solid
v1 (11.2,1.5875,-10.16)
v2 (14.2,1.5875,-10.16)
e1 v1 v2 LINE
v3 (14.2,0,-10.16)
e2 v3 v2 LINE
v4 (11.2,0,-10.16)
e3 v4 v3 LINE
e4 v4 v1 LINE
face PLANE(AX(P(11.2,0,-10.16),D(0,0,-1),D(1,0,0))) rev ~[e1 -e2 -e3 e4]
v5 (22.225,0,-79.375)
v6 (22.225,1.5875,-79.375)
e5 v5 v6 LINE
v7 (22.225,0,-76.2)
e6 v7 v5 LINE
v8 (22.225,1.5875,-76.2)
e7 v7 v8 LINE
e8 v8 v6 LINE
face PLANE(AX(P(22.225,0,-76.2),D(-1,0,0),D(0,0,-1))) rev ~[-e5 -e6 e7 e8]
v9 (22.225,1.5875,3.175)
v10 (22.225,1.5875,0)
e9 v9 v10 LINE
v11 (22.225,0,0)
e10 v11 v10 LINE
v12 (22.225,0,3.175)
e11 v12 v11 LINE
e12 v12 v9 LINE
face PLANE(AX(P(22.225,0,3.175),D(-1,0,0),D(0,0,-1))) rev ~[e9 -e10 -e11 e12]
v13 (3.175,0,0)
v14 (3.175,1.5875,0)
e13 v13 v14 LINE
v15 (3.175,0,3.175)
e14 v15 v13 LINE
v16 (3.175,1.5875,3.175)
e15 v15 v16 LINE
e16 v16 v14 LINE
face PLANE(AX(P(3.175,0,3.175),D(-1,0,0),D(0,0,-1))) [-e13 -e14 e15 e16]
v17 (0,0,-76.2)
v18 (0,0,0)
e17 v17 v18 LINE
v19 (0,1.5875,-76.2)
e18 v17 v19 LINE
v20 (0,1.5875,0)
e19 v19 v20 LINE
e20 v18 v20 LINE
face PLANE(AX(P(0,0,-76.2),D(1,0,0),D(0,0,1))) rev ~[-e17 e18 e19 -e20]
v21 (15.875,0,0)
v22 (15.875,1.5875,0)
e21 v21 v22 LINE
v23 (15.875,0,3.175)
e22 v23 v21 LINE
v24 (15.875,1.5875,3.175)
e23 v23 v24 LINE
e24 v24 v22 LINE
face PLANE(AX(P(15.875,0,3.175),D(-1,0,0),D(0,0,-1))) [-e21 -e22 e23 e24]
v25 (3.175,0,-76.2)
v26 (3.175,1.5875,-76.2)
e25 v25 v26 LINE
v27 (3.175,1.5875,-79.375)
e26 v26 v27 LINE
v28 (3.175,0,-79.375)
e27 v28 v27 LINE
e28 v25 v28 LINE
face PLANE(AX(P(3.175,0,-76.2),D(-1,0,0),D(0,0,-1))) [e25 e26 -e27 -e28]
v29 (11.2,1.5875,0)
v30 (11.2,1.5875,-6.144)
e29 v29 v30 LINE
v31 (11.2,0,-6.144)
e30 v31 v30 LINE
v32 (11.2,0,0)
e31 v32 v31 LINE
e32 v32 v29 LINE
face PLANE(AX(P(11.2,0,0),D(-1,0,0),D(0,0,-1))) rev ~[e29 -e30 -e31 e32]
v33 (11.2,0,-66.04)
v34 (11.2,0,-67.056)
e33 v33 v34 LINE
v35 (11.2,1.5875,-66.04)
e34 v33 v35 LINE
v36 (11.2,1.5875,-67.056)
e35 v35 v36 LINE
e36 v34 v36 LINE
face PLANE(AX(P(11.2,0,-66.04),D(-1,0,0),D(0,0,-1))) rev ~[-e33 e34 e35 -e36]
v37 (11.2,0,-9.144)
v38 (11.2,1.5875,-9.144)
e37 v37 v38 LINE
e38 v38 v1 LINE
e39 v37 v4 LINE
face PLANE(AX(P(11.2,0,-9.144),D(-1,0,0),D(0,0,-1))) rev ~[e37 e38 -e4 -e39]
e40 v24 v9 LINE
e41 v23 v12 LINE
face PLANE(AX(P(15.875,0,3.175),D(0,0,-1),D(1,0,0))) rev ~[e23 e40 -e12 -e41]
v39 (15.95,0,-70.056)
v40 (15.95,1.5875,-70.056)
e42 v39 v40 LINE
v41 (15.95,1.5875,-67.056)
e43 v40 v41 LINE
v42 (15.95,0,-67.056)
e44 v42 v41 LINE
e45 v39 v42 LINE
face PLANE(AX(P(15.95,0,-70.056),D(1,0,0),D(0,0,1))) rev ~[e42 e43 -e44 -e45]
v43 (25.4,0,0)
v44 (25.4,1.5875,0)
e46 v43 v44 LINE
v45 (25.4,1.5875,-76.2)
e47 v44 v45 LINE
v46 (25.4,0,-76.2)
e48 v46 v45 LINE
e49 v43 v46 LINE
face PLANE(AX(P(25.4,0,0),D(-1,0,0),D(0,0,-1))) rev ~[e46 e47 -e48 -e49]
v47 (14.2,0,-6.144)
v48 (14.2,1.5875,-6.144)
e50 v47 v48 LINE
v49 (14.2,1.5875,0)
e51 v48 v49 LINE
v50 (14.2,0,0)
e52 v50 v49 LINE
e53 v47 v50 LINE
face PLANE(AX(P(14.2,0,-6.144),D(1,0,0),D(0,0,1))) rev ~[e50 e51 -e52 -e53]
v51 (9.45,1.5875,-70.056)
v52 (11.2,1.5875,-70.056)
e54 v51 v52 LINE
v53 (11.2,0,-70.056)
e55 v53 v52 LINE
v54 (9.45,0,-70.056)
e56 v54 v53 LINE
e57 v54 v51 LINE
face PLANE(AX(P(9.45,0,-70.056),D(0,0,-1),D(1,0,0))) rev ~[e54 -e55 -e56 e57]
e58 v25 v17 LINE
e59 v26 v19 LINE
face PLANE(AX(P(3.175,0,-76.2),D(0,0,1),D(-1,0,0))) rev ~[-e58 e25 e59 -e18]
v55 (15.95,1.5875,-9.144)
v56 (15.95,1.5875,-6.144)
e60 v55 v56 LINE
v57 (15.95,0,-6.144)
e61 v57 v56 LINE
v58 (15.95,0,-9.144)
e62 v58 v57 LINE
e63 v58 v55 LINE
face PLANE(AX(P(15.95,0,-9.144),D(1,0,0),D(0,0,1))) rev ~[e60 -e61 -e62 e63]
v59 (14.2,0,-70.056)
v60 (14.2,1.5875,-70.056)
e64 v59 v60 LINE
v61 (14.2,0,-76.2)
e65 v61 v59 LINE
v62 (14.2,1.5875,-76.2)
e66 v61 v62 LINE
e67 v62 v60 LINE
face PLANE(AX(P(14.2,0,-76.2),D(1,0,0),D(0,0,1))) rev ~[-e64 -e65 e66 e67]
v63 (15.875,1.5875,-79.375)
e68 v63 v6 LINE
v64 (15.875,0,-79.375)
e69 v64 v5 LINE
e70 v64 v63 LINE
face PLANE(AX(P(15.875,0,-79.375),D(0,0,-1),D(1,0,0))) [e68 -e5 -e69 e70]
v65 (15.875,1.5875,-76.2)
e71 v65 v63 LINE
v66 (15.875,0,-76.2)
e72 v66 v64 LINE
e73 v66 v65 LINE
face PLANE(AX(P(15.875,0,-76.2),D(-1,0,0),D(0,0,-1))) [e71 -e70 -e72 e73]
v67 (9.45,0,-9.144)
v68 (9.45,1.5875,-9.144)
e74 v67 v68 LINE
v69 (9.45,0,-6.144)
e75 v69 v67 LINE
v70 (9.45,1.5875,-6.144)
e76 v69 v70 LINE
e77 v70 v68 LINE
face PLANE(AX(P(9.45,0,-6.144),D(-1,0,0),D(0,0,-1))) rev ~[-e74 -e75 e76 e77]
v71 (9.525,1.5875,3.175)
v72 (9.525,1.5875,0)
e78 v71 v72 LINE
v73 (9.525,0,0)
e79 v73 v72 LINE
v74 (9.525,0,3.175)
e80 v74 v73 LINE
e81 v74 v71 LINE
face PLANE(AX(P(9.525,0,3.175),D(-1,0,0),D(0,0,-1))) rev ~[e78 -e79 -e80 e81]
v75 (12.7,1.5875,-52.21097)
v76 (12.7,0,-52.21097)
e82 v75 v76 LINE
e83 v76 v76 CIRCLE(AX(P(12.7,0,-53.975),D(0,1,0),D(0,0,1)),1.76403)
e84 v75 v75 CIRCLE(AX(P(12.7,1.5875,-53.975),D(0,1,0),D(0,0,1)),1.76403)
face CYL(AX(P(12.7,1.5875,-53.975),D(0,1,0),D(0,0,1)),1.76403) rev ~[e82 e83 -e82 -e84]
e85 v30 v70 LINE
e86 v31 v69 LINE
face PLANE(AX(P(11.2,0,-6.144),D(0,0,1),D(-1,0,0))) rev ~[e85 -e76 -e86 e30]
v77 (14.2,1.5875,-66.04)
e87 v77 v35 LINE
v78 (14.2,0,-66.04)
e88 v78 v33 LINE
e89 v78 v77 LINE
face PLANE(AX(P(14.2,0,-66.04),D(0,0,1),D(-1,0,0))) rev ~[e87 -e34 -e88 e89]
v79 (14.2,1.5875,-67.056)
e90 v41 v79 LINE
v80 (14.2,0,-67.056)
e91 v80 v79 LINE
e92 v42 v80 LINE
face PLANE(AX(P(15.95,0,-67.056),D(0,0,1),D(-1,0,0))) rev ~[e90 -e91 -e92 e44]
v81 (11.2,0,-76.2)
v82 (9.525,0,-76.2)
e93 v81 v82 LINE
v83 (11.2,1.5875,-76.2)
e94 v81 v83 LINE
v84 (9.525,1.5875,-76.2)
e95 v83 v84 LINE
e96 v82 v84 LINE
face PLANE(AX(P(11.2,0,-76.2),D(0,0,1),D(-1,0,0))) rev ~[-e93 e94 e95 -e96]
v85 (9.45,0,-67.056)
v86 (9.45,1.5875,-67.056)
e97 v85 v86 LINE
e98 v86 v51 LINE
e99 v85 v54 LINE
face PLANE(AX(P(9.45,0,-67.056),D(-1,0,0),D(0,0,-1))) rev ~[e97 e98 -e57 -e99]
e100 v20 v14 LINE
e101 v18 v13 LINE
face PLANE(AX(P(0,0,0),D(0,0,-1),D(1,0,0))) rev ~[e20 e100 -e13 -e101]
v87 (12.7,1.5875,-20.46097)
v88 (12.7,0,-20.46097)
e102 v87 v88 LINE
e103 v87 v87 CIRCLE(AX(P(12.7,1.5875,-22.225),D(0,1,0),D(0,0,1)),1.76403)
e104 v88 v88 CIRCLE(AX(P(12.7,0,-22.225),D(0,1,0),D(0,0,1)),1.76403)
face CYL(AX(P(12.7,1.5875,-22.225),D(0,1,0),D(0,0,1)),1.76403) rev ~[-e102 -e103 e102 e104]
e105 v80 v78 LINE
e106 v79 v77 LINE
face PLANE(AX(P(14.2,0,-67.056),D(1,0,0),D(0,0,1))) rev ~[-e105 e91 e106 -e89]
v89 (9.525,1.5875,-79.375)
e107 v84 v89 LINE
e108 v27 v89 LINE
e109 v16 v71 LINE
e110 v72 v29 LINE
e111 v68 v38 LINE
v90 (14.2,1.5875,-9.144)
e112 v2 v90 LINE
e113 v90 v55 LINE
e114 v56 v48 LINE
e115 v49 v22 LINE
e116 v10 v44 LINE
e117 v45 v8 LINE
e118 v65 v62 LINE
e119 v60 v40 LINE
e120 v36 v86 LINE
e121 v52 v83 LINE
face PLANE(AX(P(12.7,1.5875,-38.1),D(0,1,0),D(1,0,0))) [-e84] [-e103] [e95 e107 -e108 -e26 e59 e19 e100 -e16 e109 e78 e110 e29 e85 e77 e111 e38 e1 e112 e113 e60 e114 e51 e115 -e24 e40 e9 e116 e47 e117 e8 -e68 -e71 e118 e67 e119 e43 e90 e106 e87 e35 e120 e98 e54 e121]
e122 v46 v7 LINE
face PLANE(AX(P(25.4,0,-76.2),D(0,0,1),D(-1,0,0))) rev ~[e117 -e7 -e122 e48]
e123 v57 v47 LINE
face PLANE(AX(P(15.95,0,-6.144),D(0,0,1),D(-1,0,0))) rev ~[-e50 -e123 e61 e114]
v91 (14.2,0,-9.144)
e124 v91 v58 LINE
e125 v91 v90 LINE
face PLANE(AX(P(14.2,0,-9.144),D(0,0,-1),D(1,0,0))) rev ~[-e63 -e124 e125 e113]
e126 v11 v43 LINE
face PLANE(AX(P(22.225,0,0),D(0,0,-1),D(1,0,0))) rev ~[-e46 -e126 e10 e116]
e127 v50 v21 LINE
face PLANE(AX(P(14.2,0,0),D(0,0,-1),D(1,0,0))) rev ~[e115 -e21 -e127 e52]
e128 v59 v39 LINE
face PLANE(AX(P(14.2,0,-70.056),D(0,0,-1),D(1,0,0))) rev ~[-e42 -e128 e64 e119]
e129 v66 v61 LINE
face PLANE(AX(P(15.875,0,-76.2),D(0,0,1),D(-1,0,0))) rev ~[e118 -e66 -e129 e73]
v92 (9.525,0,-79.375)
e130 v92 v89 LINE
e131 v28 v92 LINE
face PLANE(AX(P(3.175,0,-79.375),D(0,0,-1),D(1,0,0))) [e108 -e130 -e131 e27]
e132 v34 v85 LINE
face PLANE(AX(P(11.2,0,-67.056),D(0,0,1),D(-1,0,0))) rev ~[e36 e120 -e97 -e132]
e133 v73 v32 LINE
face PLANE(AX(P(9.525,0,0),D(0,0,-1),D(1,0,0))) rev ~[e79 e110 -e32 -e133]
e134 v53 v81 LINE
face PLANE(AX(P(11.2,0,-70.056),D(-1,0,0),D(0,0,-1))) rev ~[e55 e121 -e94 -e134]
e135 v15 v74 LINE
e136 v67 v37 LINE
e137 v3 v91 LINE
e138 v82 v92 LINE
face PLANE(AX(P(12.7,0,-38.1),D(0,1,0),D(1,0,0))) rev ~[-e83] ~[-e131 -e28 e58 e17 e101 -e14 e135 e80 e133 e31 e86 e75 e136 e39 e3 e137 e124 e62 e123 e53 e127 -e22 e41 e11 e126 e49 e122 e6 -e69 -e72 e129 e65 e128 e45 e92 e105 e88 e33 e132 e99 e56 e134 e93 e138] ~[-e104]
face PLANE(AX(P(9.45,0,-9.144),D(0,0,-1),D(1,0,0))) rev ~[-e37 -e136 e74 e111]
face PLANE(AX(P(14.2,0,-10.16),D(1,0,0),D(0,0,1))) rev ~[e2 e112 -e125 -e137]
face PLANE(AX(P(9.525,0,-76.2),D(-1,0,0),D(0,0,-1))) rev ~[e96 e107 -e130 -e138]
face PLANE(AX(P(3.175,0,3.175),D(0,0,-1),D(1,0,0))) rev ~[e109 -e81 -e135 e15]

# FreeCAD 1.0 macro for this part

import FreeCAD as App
import Part
import Sketcher
Q = App.Units.Quantity


def add_polygon(sketch, points):
    """Adds a closed chain of lines whose ends are joined by coincident constraints."""
    first, n = sketch.GeometryCount, len(points)
    for a, b in zip(points, points[1:] + points[:1]):
        sketch.addGeometry(Part.LineSegment(App.Vector(*a, 0), App.Vector(*b, 0)), False)
    for i in range(n):
        sketch.addConstraint(Sketcher.Constraint("Coincident", first + i, 2, first + (i + 1) % n, 1))

doc = App.newDocument("Part")
body = doc.addObject("PartDesign::Body", "Body")

sketch1 = doc.addObject("Sketcher::SketchObject", "Sketch")
body.addObject(sketch1)
sketch1.AttachmentSupport = (doc.XZ_Plane, [""])
sketch1.MapMode = "FlatFace"
add_polygon(sketch1, [(0, -76.2), (0, 0), (3.2, 0), (3.2, 3.2), (9.5, 3.2), (9.5, 0), (11.2, 0), (11.2, -6.1), (9.4, -6.1), (9.4, -9.1), (11.2, -9.1), (11.2, -10.2), (14.2, -10.2), (14.2, -9.1), (15.9, -9.1), (15.9, -6.1), (14.2, -6.1), (14.2, 0), (15.9, 0), (15.9, 3.2), (22.2, 3.2), (22.2, 0), (25.4, 0), (25.4, -76.2), (22.2, -76.2), (22.2, -79.4), (15.9, -79.4), (15.9, -76.2), (14.2, -76.2), (14.2, -70.1), (15.9, -70.1), (15.9, -67.1), (14.2, -67.1), (14.2, -66), (11.2, -66), (11.2, -67.1), (9.4, -67.1), (9.4, -70.1), (11.2, -70.1), (11.2, -76.2), (9.5, -76.2), (9.5, -79.4), (3.2, -79.4), (3.2, -76.2)])
sketch1.addConstraint(Sketcher.Constraint("Vertical", 0))
sketch1.addConstraint(Sketcher.Constraint("Horizontal", 1))
sketch1.addConstraint(Sketcher.Constraint("Vertical", 2))
sketch1.addConstraint(Sketcher.Constraint("Horizontal", 3))
sketch1.addConstraint(Sketcher.Constraint("Vertical", 4))
sketch1.addConstraint(Sketcher.Constraint("Horizontal", 5))
sketch1.addConstraint(Sketcher.Constraint("Vertical", 6))
sketch1.addConstraint(Sketcher.Constraint("Horizontal", 7))
sketch1.addConstraint(Sketcher.Constraint("Vertical", 8))
sketch1.addConstraint(Sketcher.Constraint("Horizontal", 9))
sketch1.addConstraint(Sketcher.Constraint("Vertical", 10))
sketch1.addConstraint(Sketcher.Constraint("Horizontal", 11))
sketch1.addConstraint(Sketcher.Constraint("Vertical", 12))
sketch1.addConstraint(Sketcher.Constraint("Horizontal", 13))
sketch1.addConstraint(Sketcher.Constraint("Vertical", 14))
sketch1.addConstraint(Sketcher.Constraint("Horizontal", 15))
sketch1.addConstraint(Sketcher.Constraint("Vertical", 16))
sketch1.addConstraint(Sketcher.Constraint("Horizontal", 17))
sketch1.addConstraint(Sketcher.Constraint("Vertical", 18))
sketch1.addConstraint(Sketcher.Constraint("Horizontal", 19))
sketch1.addConstraint(Sketcher.Constraint("Vertical", 20))
sketch1.addConstraint(Sketcher.Constraint("Horizontal", 21))
sketch1.addConstraint(Sketcher.Constraint("Vertical", 22))
sketch1.addConstraint(Sketcher.Constraint("Horizontal", 23))
sketch1.addConstraint(Sketcher.Constraint("Vertical", 24))
sketch1.addConstraint(Sketcher.Constraint("Horizontal", 25))
sketch1.addConstraint(Sketcher.Constraint("Vertical", 26))
sketch1.addConstraint(Sketcher.Constraint("Horizontal", 27))
sketch1.addConstraint(Sketcher.Constraint("Vertical", 28))
sketch1.addConstraint(Sketcher.Constraint("Horizontal", 29))
sketch1.addConstraint(Sketcher.Constraint("Vertical", 30))
sketch1.addConstraint(Sketcher.Constraint("Horizontal", 31))
sketch1.addConstraint(Sketcher.Constraint("Vertical", 32))
sketch1.addConstraint(Sketcher.Constraint("Horizontal", 33))
sketch1.addConstraint(Sketcher.Constraint("Vertical", 34))
sketch1.addConstraint(Sketcher.Constraint("Horizontal", 35))
sketch1.addConstraint(Sketcher.Constraint("Vertical", 36))
sketch1.addConstraint(Sketcher.Constraint("Horizontal", 37))
sketch1.addConstraint(Sketcher.Constraint("Vertical", 38))
sketch1.addConstraint(Sketcher.Constraint("Horizontal", 39))
sketch1.addConstraint(Sketcher.Constraint("Vertical", 40))
sketch1.addConstraint(Sketcher.Constraint("Horizontal", 41))
sketch1.addConstraint(Sketcher.Constraint("Vertical", 42))
sketch1.addConstraint(Sketcher.Constraint("Horizontal", 43))
sketch1.addConstraint(Sketcher.Constraint("Coincident", 0, 2, -1, 1))
sketch1.addConstraint(Sketcher.Constraint("PointOnObject", 4, 2, -1))
sketch1.addConstraint(Sketcher.Constraint("PointOnObject", 16, 2, -1))
sketch1.addConstraint(Sketcher.Constraint("PointOnObject", 20, 2, -1))
sketch1.addConstraint(Sketcher.Constraint("Horizontal", 9, 2, 12, 2))
sketch1.addConstraint(Sketcher.Constraint("Horizontal", 7, 2, 14, 2))
sketch1.addConstraint(Sketcher.Constraint("Horizontal", 3, 2, 18, 2))
sketch1.addConstraint(Sketcher.Constraint("Horizontal", 23, 2, 26, 2))
sketch1.addConstraint(Sketcher.Constraint("Horizontal", 31, 2, 34, 2))
sketch1.addConstraint(Sketcher.Constraint("Horizontal", 29, 2, 36, 2))
sketch1.addConstraint(Sketcher.Constraint("Horizontal", 27, 2, 38, 2))
sketch1.addConstraint(Sketcher.Constraint("Horizontal", 25, 2, 40, 2))
sketch1.addConstraint(Sketcher.Constraint("Horizontal", 39, 2, 42, 2))
sketch1.addConstraint(Sketcher.Constraint("Vertical", 6, 2, 9, 2))
sketch1.addConstraint(Sketcher.Constraint("Vertical", 12, 2, 15, 2))
sketch1.addConstraint(Sketcher.Constraint("Vertical", 20, 2, 23, 2))
sketch1.addConstraint(Sketcher.Constraint("Vertical", 18, 2, 25, 2))
sketch1.addConstraint(Sketcher.Constraint("Vertical", 16, 2, 27, 2))
sketch1.addConstraint(Sketcher.Constraint("Vertical", 14, 2, 29, 2))
sketch1.addConstraint(Sketcher.Constraint("Vertical", 28, 2, 31, 2))
sketch1.addConstraint(Sketcher.Constraint("Vertical", 10, 2, 33, 2))
sketch1.addConstraint(Sketcher.Constraint("Vertical", 8, 2, 35, 2))
sketch1.addConstraint(Sketcher.Constraint("Vertical", 34, 2, 37, 2))
sketch1.addConstraint(Sketcher.Constraint("Vertical", 4, 2, 39, 2))
sketch1.addConstraint(Sketcher.Constraint("Vertical", 2, 2, 41, 2))
sketch1.addConstraint(Sketcher.Constraint("Equal", 9, 13))
sketch1.addConstraint(Sketcher.Constraint("Equal", 5, 17))
sketch1.addConstraint(Sketcher.Constraint("Equal", 3, 19))
sketch1.addConstraint(Sketcher.Constraint("Equal", 1, 21))
sketch1.addConstraint(Sketcher.Constraint("Equal", 43, 2))
sketch1.addConstraint(Sketcher.Constraint("Equal", 33, 8))
sketch1.addConstraint(Sketcher.Constraint("Equal", 20, 24))
sketch1.addConstraint(Sketcher.Constraint("Equal", 16, 28))
sketch1.addConstraint(Sketcher.Constraint("Equal", 14, 30))
sketch1.addConstraint(Sketcher.Constraint("Equal", 12, 32))
sketch1.addConstraint(Sketcher.Constraint("DistanceY", 0, 1, 0, 2, Q("3 in")))
sketch1.addConstraint(Sketcher.Constraint("DistanceX", -1, 1, 21, 2, Q("1 in")))
sketch1.addConstraint(Sketcher.Constraint("DistanceX", 3, 1, 3, 2, Q("0.25 in")))
sketch1.addConstraint(Sketcher.Constraint("DistanceY", 10, 2, 10, 1, Q("0.04 in")))
sketch1.addConstraint(Sketcher.Constraint("DistanceY", 10, 2, -1, 1, Q("0.4 in")))
sketch1.addConstraint(Sketcher.Constraint("DistanceX", 1, 1, 1, 2, Q("0.125 in")))
sketch1.addConstraint(Sketcher.Constraint("DistanceX", 5, 1, 5, 2, Q("1.675 mm")))
sketch1.addConstraint(Sketcher.Constraint("DistanceX", 7, 2, 7, 1, Q("1.75 mm")))
pad1 = doc.addObject("PartDesign::Pad", "Pad")
body.addObject(pad1)
pad1.Profile = sketch1
pad1.Length = Q("0.0625 in")
pad1.Reversed = True

sketch2 = doc.addObject("Sketcher::SketchObject", "Sketch001")
body.addObject(sketch2)
sketch2.AttachmentSupport = (doc.XZ_Plane, [""])
sketch2.MapMode = "FlatFace"
sketch2.AttachmentOffset = App.Placement(App.Vector(0, 0, -0.0625 * 25.4), App.Rotation())
sketch2.addGeometry(Part.Circle(App.Vector(12.7, -54, 0), App.Vector(0, 0, 1), 1.8), False)
sketch2.addGeometry(Part.Circle(App.Vector(12.7, -22.2, 0), App.Vector(0, 0, 1), 1.8), False)
sketch2.addConstraint(Sketcher.Constraint("Equal", 0, 1))
sketch2.addConstraint(Sketcher.Constraint("Vertical", 0, 3, 1, 3))
sketch2.addConstraint(Sketcher.Constraint("Diameter", 0, Q("0.1389 in")))
sketch2.addConstraint(Sketcher.Constraint("DistanceX", -1, 1, 0, 3, Q("0.5 in")))
sketch2.addConstraint(Sketcher.Constraint("DistanceY", 0, 3, 1, 3, Q("1.25 in")))
sketch2.addConstraint(Sketcher.Constraint("DistanceY", 0, 3, -1, 1, Q("2.125 in")))
pocket1 = doc.addObject("PartDesign::Pocket", "Pocket")
body.addObject(pocket1)
pocket1.Profile = sketch2
pocket1.Length = Q("0.0625 in")
pocket1.Reversed = True

doc.recompute()
